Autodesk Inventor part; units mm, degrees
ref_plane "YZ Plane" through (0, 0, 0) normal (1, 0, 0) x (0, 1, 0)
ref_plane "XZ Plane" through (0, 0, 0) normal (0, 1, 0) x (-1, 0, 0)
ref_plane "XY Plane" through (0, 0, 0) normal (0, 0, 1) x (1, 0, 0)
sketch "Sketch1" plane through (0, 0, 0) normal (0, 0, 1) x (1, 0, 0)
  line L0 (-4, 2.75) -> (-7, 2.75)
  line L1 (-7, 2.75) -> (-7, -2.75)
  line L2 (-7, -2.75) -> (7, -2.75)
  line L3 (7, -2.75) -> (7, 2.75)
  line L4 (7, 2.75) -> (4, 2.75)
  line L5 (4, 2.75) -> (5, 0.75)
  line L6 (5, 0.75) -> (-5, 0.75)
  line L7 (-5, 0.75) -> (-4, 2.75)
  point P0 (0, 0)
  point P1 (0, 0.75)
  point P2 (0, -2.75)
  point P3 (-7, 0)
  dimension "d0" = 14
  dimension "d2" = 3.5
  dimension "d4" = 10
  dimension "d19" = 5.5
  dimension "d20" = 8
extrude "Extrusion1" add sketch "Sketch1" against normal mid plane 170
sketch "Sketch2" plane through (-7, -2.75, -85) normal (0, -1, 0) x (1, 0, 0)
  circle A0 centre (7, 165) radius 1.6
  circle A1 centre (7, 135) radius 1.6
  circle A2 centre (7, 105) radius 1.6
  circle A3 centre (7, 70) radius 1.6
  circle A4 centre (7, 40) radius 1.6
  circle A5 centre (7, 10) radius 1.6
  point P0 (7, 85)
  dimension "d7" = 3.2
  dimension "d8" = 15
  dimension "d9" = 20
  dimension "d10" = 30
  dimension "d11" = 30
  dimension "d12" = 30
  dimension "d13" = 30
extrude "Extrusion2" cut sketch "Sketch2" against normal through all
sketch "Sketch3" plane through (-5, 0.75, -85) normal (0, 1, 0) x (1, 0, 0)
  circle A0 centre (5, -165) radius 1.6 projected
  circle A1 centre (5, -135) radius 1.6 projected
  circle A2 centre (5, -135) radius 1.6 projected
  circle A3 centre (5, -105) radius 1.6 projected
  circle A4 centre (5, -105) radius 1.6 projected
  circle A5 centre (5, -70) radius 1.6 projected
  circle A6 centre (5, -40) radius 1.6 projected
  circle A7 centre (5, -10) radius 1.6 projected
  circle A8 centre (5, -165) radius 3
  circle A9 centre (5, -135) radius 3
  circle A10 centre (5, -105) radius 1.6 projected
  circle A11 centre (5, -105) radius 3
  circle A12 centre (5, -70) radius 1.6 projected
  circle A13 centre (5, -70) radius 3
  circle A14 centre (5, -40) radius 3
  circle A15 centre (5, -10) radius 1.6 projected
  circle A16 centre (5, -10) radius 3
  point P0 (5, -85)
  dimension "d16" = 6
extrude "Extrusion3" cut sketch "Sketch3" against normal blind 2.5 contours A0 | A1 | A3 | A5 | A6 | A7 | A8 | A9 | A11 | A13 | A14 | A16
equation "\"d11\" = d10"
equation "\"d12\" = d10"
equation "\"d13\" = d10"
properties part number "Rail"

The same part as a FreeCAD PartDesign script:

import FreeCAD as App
import Part
import Sketcher

V = App.Vector

doc = App.newDocument("Part")
params = doc.addObject("Spreadsheet::Sheet", "Params")
for row, (alias, value) in enumerate([
    ("sketch1_width", "14 mm"),
    ("sketch1_width2", "10 mm"),
    ("sketch1_height", "5.5 mm"),
    ("pad1_length", "170 mm"),
    ("sketch2_diameter", "3.2 mm"),
    ("sketch3_diameter", "6 mm"),
    ("pocket2_length", "2.5 mm"),
], start=1):
    params.set(f"A{row}", alias)
    params.set(f"B{row}", "=" + value)
    params.setAlias(f"B{row}", alias)

body = doc.addObject("PartDesign::Body", "Body")

sketch1 = body.newObject("Sketcher::SketchObject", "Sketch")
sketch1.AttachmentSupport = (doc.getObject("XY_Plane"), [""])
sketch1.MapMode = "FlatFace"
sketch1.addGeometry([
    Part.LineSegment(V(-5, 0.8, 0), V(-4, 2.8, 0)),
    Part.LineSegment(V(-4, 2.8, 0), V(-7, 2.8, 0)),
    Part.LineSegment(V(-7, 2.8, 0), V(-7, -2.8, 0)),
    Part.LineSegment(V(-7, -2.8, 0), V(7, -2.8, 0)),
    Part.LineSegment(V(7, -2.8, 0), V(7, 2.8, 0)),
    Part.LineSegment(V(7, 2.8, 0), V(4, 2.8, 0)),
    Part.LineSegment(V(4, 2.8, 0), V(5, 0.8, 0)),
    Part.LineSegment(V(5, 0.8, 0), V(-5, 0.8, 0)),
], False)
sketch1.addConstraint([
    Sketcher.Constraint("Coincident", 0, 2, 1, 1),
    Sketcher.Constraint("Coincident", 1, 2, 2, 1),
    Sketcher.Constraint("Coincident", 2, 2, 3, 1),
    Sketcher.Constraint("Coincident", 3, 2, 4, 1),
    Sketcher.Constraint("Coincident", 4, 2, 5, 1),
    Sketcher.Constraint("Coincident", 5, 2, 6, 1),
    Sketcher.Constraint("Coincident", 6, 2, 7, 1),
    Sketcher.Constraint("Coincident", 7, 2, 0, 1),
    Sketcher.Constraint("Horizontal", 1),
    Sketcher.Constraint("Vertical", 2),
    Sketcher.Constraint("Horizontal", 3),
    Sketcher.Constraint("Vertical", 4),
    Sketcher.Constraint("Horizontal", 5),
    Sketcher.Constraint("Horizontal", 7),
    Sketcher.Constraint("Symmetric", 1, 2, 3, 2, -1, 1),
    Sketcher.Constraint("Symmetric", 0, 2, 5, 2, -2),
    Sketcher.Constraint("Equal", 0, 6),
    Sketcher.Constraint("DistanceX", 3, 1, 3, 2, 14.0),
    Sketcher.Constraint("DistanceX", 7, 2, 7, 1, 10.0),
    Sketcher.Constraint("DistanceY", 2, 2, 2, 1, 5.5),
    Sketcher.Constraint("DistanceX", 0, 2, 5, 2, 8.0),
    Sketcher.Constraint("DistanceY", 3, 2, 6, 2, 3.5),
])
sketch1.setExpression("Constraints[17]", "Params.sketch1_width")
sketch1.setExpression("Constraints[18]", "Params.sketch1_width2")
sketch1.setExpression("Constraints[19]", "Params.sketch1_height")
pad1 = body.newObject("PartDesign::Pad", "Pad")
pad1.Profile = sketch1
pad1.setExpression("Length", "Params.pad1_length")
pad1.Midplane = True

sketch2 = body.newObject("Sketcher::SketchObject", "Sketch001")
sketch2.AttachmentSupport = (doc.getObject("XZ_Plane"), [""])
sketch2.MapMode = "FlatFace"
sketch2.AttachmentOffset = App.Placement(V(0, 0, 2.75), App.Rotation())
sketch2.addGeometry([
    Part.Circle(V(0, 80, 0), V(0, 0, 1), 1.6),
    Part.Circle(V(0, 50, 0), V(0, 0, 1), 1.6),
    Part.Circle(V(0, 20, 0), V(0, 0, 1), 1.6),
    Part.Circle(V(0, -15, 0), V(0, 0, 1), 1.6),
    Part.Circle(V(0, -45, 0), V(0, 0, 1), 1.6),
    Part.Circle(V(0, -75, 0), V(0, 0, 1), 1.6),
], False)
sketch2.addConstraint([
    Sketcher.Constraint("Equal", 0, 1),
    Sketcher.Constraint("Equal", 1, 2),
    Sketcher.Constraint("Equal", 2, 3),
    Sketcher.Constraint("Equal", 3, 4),
    Sketcher.Constraint("Equal", 4, 5),
    Sketcher.Constraint("PointOnObject", 0, 3, -2),
    Sketcher.Constraint("PointOnObject", 1, 3, -2),
    Sketcher.Constraint("PointOnObject", 2, 3, -2),
    Sketcher.Constraint("PointOnObject", 3, 3, -2),
    Sketcher.Constraint("PointOnObject", 4, 3, -2),
    Sketcher.Constraint("PointOnObject", 5, 3, -2),
    Sketcher.Constraint("Diameter", 0, 3.2),
    Sketcher.Constraint("DistanceY", -1, 1, 2, 3, 20.0),
    Sketcher.Constraint("DistanceY", 3, 3, -1, 1, 15.0),
    Sketcher.Constraint("DistanceY", 1, 3, 0, 3, 30.0),
    Sketcher.Constraint("DistanceY", 2, 3, 1, 3, 30.0),
    Sketcher.Constraint("DistanceY", 4, 3, 3, 3, 30.0),
    Sketcher.Constraint("DistanceY", 5, 3, 4, 3, 30.0),
])
sketch2.setExpression("Constraints[11]", "Params.sketch2_diameter")
pocket1 = body.newObject("PartDesign::Pocket", "Pocket")
pocket1.Profile = sketch2
pocket1.Type = "ThroughAll"

sketch3 = body.newObject("Sketcher::SketchObject", "Sketch002")
sketch3.AttachmentSupport = (doc.getObject("XZ_Plane"), [""])
sketch3.MapMode = "FlatFace"
sketch3.AttachmentOffset = App.Placement(V(0, 0, -0.75), App.Rotation())
sketch3.addGeometry([
    Part.Circle(V(0, 80, 0), V(0, 0, 1), 3),
    Part.Circle(V(0, 50, 0), V(0, 0, 1), 3),
    Part.Circle(V(0, 20, 0), V(0, 0, 1), 3),
    Part.Circle(V(0, -15, 0), V(0, 0, 1), 3),
    Part.Circle(V(0, -45, 0), V(0, 0, 1), 3),
    Part.Circle(V(0, -75, 0), V(0, 0, 1), 3),
], False)
sketch3.addConstraint([
    Sketcher.Constraint("Equal", 0, 1),
    Sketcher.Constraint("Equal", 1, 2),
    Sketcher.Constraint("Equal", 2, 3),
    Sketcher.Constraint("Equal", 3, 4),
    Sketcher.Constraint("Equal", 4, 5),
    Sketcher.Constraint("PointOnObject", 0, 3, -2),
    Sketcher.Constraint("PointOnObject", 1, 3, -2),
    Sketcher.Constraint("PointOnObject", 2, 3, -2),
    Sketcher.Constraint("PointOnObject", 3, 3, -2),
    Sketcher.Constraint("PointOnObject", 4, 3, -2),
    Sketcher.Constraint("PointOnObject", 5, 3, -2),
    Sketcher.Constraint("Diameter", 0, 6.0),
    Sketcher.Constraint("DistanceY", -1, 1, 0, 3, 80.0),
    Sketcher.Constraint("DistanceY", -1, 1, 1, 3, 50.0),
    Sketcher.Constraint("DistanceY", -1, 1, 2, 3, 20.0),
    Sketcher.Constraint("DistanceY", 3, 3, -1, 1, 15.0),
    Sketcher.Constraint("DistanceY", 4, 3, -1, 1, 45.0),
    Sketcher.Constraint("DistanceY", 5, 3, -1, 1, 75.0),
])
sketch3.setExpression("Constraints[11]", "Params.sketch3_diameter")
pocket2 = body.newObject("PartDesign::Pocket", "Pocket001")
pocket2.Profile = sketch3
pocket2.setExpression("Length", "Params.pocket2_length")
pocket2.Reversed = True

doc.recompute()
